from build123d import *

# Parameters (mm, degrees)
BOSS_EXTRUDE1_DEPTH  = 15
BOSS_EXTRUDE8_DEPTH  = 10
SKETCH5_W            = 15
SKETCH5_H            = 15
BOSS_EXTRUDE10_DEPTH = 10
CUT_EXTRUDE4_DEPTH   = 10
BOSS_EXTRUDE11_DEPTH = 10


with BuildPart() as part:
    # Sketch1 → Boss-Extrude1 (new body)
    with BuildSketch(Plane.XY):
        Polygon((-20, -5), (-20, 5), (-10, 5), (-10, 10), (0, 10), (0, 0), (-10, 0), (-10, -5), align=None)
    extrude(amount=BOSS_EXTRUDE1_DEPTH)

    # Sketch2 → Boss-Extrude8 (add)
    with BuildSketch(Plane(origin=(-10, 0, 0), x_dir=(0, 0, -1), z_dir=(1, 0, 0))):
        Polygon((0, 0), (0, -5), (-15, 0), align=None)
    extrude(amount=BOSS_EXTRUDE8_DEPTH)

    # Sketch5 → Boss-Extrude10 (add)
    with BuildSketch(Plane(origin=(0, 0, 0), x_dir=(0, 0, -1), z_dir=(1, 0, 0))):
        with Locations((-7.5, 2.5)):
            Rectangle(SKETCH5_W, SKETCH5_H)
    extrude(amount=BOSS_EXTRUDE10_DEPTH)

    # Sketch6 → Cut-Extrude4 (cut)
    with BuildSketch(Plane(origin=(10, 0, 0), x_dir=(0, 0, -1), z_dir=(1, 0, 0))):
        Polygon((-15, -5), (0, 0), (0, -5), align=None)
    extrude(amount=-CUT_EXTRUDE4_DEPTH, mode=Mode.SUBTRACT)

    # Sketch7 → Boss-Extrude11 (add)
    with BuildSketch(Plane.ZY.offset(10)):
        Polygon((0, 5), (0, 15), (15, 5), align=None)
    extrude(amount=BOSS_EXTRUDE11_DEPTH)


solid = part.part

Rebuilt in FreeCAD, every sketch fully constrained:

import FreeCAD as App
import Part
import Sketcher

V = App.Vector

doc = App.newDocument("Part")
body = doc.addObject("PartDesign::Body", "Body")

sketch1 = doc.addObject("Sketcher::SketchObject", "Sketch")
body.addObject(sketch1)
sketch1.AttachmentSupport = (doc.XY_Plane, [""])
sketch1.MapMode = "FlatFace"
sketch1.addGeometry([
    Part.LineSegment(V(-20, 5, 0), V(-20, -5, 0)),
    Part.LineSegment(V(-20, -5, 0), V(-10, -5, 0)),
    Part.LineSegment(V(-10, -5, 0), V(-10, 0, 0)),
    Part.LineSegment(V(-10, 0, 0), V(0, 0, 0)),
    Part.LineSegment(V(0, 0, 0), V(0, 10, 0)),
    Part.LineSegment(V(0, 10, 0), V(-10, 10, 0)),
    Part.LineSegment(V(-10, 10, 0), V(-10, 5, 0)),
    Part.LineSegment(V(-10, 5, 0), V(-20, 5, 0)),
], False)
sketch1.addConstraint([
    Sketcher.Constraint("Coincident", 0, 2, 1, 1),
    Sketcher.Constraint("Coincident", 1, 2, 2, 1),
    Sketcher.Constraint("Coincident", 2, 2, 3, 1),
    Sketcher.Constraint("Coincident", 3, 2, 4, 1),
    Sketcher.Constraint("Coincident", 4, 2, 5, 1),
    Sketcher.Constraint("Coincident", 5, 2, 6, 1),
    Sketcher.Constraint("Coincident", 6, 2, 7, 1),
    Sketcher.Constraint("Coincident", 7, 2, 0, 1),
    Sketcher.Constraint("Vertical", 0),
    Sketcher.Constraint("Horizontal", 1),
    Sketcher.Constraint("Vertical", 2),
    Sketcher.Constraint("Horizontal", 3),
    Sketcher.Constraint("Vertical", 4),
    Sketcher.Constraint("Horizontal", 5),
    Sketcher.Constraint("Vertical", 6),
    Sketcher.Constraint("Horizontal", 7),
    Sketcher.Constraint("Coincident", 3, 2, -1, 1),
    Sketcher.Constraint("Symmetric", 1, 2, 6, 2, -1),
    Sketcher.Constraint("Equal", 1, 3),
    Sketcher.Constraint("Equal", 7, 0),
    Sketcher.Constraint("Equal", 0, 4),
    Sketcher.Constraint("DistanceX", 1, 1, 1, 2, 10.0),
])
pad1 = doc.addObject("PartDesign::Pad", "Pad")
body.addObject(pad1)
pad1.Profile = sketch1
pad1.Length = 15

sketch2 = doc.addObject("Sketcher::SketchObject", "Sketch001")
body.addObject(sketch2)
sketch2.AttachmentSupport = (doc.YZ_Plane, [""])
sketch2.MapMode = "FlatFace"
sketch2.AttachmentOffset = App.Placement(V(0, 0, -10), App.Rotation())
sketch2.addGeometry([
    Part.LineSegment(V(-5, 0, 0), V(0, 0, 0)),
    Part.LineSegment(V(0, 0, 0), V(0, 15, 0)),
    Part.LineSegment(V(0, 15, 0), V(-5, 0, 0)),
], False)
sketch2.addConstraint([
    Sketcher.Constraint("Coincident", 0, 2, 1, 1),
    Sketcher.Constraint("Coincident", 1, 2, 2, 1),
    Sketcher.Constraint("Coincident", 2, 2, 0, 1),
    Sketcher.Constraint("Horizontal", 0),
    Sketcher.Constraint("Vertical", 1),
    Sketcher.Constraint("Coincident", 0, 2, -1, 1),
    Sketcher.Constraint("DistanceX", 0, 1, 0, 2, 5.0),
    Sketcher.Constraint("DistanceY", 1, 1, 1, 2, 15.0),
])
pad2 = doc.addObject("PartDesign::Pad", "Pad001")
body.addObject(pad2)
pad2.Profile = sketch2
pad2.Length = 10

sketch3 = doc.addObject("Sketcher::SketchObject", "Sketch002")
body.addObject(sketch3)
sketch3.AttachmentSupport = (doc.YZ_Plane, [""])
sketch3.MapMode = "FlatFace"
sketch3.addGeometry([
    Part.LineSegment(V(10, 15, 0), V(-5, 15, 0)),
    Part.LineSegment(V(-5, 15, 0), V(-5, 0, 0)),
    Part.LineSegment(V(-5, 0, 0), V(10, 0, 0)),
    Part.LineSegment(V(10, 0, 0), V(10, 15, 0)),
], False)
sketch3.addConstraint([
    Sketcher.Constraint("Coincident", 0, 2, 1, 1),
    Sketcher.Constraint("Coincident", 1, 2, 2, 1),
    Sketcher.Constraint("Coincident", 2, 2, 3, 1),
    Sketcher.Constraint("Coincident", 3, 2, 0, 1),
    Sketcher.Constraint("Horizontal", 0),
    Sketcher.Constraint("Vertical", 1),
    Sketcher.Constraint("Horizontal", 2),
    Sketcher.Constraint("Vertical", 3),
    Sketcher.Constraint("PointOnObject", 1, 2, -1),
    Sketcher.Constraint("Equal", 2, 1),
    Sketcher.Constraint("DistanceX", 0, 2, 0, 1, 15.0),
    Sketcher.Constraint("DistanceX", 0, 2, -1, 1, 5.0),
])
pad3 = doc.addObject("PartDesign::Pad", "Pad002")
body.addObject(pad3)
pad3.Profile = sketch3
pad3.Length = 10

sketch4 = doc.addObject("Sketcher::SketchObject", "Sketch003")
body.addObject(sketch4)
sketch4.AttachmentSupport = (doc.YZ_Plane, [""])
sketch4.MapMode = "FlatFace"
sketch4.AttachmentOffset = App.Placement(V(0, 0, 10), App.Rotation())
sketch4.addGeometry([
    Part.LineSegment(V(0, 0, 0), V(-5, 15, 0)),
    Part.LineSegment(V(-5, 15, 0), V(-5, 0, 0)),
    Part.LineSegment(V(-5, 0, 0), V(0, 0, 0)),
], False)
sketch4.addConstraint([
    Sketcher.Constraint("Coincident", 0, 2, 1, 1),
    Sketcher.Constraint("Coincident", 1, 2, 2, 1),
    Sketcher.Constraint("Coincident", 2, 2, 0, 1),
    Sketcher.Constraint("Vertical", 1),
    Sketcher.Constraint("Horizontal", 2),
    Sketcher.Constraint("Coincident", 2, 2, -1, 1),
    Sketcher.Constraint("DistanceX", 2, 1, 2, 2, 5.0),
    Sketcher.Constraint("DistanceY", 1, 2, 1, 1, 15.0),
])
pocket1 = doc.addObject("PartDesign::Pocket", "Pocket")
body.addObject(pocket1)
pocket1.Profile = sketch4
pocket1.Length = 10

sketch5 = doc.addObject("Sketcher::SketchObject", "Sketch004")
body.addObject(sketch5)
sketch5.AttachmentSupport = (doc.YZ_Plane, [""])
sketch5.MapMode = "FlatFace"
sketch5.AttachmentOffset = App.Placement(V(0, 0, -10), App.Rotation())
sketch5.addGeometry([
    Part.LineSegment(V(15, 0, 0), V(5, 0, 0)),
    Part.LineSegment(V(5, 0, 0), V(5, 15, 0)),
    Part.LineSegment(V(5, 15, 0), V(15, 0, 0)),
], False)
sketch5.addConstraint([
    Sketcher.Constraint("Coincident", 0, 2, 1, 1),
    Sketcher.Constraint("Coincident", 1, 2, 2, 1),
    Sketcher.Constraint("Coincident", 2, 2, 0, 1),
    Sketcher.Constraint("Horizontal", 0),
    Sketcher.Constraint("Vertical", 1),
    Sketcher.Constraint("PointOnObject", 0, 2, -1),
    Sketcher.Constraint("DistanceX", 0, 2, 0, 1, 10.0),
    Sketcher.Constraint("DistanceY", 1, 1, 1, 2, 15.0),
    Sketcher.Constraint("DistanceX", -1, 1, 0, 2, 5.0),
])
pad4 = doc.addObject("PartDesign::Pad", "Pad003")
body.addObject(pad4)
pad4.Profile = sketch5
pad4.Length = 10
pad4.Reversed = True

doc.recompute()
